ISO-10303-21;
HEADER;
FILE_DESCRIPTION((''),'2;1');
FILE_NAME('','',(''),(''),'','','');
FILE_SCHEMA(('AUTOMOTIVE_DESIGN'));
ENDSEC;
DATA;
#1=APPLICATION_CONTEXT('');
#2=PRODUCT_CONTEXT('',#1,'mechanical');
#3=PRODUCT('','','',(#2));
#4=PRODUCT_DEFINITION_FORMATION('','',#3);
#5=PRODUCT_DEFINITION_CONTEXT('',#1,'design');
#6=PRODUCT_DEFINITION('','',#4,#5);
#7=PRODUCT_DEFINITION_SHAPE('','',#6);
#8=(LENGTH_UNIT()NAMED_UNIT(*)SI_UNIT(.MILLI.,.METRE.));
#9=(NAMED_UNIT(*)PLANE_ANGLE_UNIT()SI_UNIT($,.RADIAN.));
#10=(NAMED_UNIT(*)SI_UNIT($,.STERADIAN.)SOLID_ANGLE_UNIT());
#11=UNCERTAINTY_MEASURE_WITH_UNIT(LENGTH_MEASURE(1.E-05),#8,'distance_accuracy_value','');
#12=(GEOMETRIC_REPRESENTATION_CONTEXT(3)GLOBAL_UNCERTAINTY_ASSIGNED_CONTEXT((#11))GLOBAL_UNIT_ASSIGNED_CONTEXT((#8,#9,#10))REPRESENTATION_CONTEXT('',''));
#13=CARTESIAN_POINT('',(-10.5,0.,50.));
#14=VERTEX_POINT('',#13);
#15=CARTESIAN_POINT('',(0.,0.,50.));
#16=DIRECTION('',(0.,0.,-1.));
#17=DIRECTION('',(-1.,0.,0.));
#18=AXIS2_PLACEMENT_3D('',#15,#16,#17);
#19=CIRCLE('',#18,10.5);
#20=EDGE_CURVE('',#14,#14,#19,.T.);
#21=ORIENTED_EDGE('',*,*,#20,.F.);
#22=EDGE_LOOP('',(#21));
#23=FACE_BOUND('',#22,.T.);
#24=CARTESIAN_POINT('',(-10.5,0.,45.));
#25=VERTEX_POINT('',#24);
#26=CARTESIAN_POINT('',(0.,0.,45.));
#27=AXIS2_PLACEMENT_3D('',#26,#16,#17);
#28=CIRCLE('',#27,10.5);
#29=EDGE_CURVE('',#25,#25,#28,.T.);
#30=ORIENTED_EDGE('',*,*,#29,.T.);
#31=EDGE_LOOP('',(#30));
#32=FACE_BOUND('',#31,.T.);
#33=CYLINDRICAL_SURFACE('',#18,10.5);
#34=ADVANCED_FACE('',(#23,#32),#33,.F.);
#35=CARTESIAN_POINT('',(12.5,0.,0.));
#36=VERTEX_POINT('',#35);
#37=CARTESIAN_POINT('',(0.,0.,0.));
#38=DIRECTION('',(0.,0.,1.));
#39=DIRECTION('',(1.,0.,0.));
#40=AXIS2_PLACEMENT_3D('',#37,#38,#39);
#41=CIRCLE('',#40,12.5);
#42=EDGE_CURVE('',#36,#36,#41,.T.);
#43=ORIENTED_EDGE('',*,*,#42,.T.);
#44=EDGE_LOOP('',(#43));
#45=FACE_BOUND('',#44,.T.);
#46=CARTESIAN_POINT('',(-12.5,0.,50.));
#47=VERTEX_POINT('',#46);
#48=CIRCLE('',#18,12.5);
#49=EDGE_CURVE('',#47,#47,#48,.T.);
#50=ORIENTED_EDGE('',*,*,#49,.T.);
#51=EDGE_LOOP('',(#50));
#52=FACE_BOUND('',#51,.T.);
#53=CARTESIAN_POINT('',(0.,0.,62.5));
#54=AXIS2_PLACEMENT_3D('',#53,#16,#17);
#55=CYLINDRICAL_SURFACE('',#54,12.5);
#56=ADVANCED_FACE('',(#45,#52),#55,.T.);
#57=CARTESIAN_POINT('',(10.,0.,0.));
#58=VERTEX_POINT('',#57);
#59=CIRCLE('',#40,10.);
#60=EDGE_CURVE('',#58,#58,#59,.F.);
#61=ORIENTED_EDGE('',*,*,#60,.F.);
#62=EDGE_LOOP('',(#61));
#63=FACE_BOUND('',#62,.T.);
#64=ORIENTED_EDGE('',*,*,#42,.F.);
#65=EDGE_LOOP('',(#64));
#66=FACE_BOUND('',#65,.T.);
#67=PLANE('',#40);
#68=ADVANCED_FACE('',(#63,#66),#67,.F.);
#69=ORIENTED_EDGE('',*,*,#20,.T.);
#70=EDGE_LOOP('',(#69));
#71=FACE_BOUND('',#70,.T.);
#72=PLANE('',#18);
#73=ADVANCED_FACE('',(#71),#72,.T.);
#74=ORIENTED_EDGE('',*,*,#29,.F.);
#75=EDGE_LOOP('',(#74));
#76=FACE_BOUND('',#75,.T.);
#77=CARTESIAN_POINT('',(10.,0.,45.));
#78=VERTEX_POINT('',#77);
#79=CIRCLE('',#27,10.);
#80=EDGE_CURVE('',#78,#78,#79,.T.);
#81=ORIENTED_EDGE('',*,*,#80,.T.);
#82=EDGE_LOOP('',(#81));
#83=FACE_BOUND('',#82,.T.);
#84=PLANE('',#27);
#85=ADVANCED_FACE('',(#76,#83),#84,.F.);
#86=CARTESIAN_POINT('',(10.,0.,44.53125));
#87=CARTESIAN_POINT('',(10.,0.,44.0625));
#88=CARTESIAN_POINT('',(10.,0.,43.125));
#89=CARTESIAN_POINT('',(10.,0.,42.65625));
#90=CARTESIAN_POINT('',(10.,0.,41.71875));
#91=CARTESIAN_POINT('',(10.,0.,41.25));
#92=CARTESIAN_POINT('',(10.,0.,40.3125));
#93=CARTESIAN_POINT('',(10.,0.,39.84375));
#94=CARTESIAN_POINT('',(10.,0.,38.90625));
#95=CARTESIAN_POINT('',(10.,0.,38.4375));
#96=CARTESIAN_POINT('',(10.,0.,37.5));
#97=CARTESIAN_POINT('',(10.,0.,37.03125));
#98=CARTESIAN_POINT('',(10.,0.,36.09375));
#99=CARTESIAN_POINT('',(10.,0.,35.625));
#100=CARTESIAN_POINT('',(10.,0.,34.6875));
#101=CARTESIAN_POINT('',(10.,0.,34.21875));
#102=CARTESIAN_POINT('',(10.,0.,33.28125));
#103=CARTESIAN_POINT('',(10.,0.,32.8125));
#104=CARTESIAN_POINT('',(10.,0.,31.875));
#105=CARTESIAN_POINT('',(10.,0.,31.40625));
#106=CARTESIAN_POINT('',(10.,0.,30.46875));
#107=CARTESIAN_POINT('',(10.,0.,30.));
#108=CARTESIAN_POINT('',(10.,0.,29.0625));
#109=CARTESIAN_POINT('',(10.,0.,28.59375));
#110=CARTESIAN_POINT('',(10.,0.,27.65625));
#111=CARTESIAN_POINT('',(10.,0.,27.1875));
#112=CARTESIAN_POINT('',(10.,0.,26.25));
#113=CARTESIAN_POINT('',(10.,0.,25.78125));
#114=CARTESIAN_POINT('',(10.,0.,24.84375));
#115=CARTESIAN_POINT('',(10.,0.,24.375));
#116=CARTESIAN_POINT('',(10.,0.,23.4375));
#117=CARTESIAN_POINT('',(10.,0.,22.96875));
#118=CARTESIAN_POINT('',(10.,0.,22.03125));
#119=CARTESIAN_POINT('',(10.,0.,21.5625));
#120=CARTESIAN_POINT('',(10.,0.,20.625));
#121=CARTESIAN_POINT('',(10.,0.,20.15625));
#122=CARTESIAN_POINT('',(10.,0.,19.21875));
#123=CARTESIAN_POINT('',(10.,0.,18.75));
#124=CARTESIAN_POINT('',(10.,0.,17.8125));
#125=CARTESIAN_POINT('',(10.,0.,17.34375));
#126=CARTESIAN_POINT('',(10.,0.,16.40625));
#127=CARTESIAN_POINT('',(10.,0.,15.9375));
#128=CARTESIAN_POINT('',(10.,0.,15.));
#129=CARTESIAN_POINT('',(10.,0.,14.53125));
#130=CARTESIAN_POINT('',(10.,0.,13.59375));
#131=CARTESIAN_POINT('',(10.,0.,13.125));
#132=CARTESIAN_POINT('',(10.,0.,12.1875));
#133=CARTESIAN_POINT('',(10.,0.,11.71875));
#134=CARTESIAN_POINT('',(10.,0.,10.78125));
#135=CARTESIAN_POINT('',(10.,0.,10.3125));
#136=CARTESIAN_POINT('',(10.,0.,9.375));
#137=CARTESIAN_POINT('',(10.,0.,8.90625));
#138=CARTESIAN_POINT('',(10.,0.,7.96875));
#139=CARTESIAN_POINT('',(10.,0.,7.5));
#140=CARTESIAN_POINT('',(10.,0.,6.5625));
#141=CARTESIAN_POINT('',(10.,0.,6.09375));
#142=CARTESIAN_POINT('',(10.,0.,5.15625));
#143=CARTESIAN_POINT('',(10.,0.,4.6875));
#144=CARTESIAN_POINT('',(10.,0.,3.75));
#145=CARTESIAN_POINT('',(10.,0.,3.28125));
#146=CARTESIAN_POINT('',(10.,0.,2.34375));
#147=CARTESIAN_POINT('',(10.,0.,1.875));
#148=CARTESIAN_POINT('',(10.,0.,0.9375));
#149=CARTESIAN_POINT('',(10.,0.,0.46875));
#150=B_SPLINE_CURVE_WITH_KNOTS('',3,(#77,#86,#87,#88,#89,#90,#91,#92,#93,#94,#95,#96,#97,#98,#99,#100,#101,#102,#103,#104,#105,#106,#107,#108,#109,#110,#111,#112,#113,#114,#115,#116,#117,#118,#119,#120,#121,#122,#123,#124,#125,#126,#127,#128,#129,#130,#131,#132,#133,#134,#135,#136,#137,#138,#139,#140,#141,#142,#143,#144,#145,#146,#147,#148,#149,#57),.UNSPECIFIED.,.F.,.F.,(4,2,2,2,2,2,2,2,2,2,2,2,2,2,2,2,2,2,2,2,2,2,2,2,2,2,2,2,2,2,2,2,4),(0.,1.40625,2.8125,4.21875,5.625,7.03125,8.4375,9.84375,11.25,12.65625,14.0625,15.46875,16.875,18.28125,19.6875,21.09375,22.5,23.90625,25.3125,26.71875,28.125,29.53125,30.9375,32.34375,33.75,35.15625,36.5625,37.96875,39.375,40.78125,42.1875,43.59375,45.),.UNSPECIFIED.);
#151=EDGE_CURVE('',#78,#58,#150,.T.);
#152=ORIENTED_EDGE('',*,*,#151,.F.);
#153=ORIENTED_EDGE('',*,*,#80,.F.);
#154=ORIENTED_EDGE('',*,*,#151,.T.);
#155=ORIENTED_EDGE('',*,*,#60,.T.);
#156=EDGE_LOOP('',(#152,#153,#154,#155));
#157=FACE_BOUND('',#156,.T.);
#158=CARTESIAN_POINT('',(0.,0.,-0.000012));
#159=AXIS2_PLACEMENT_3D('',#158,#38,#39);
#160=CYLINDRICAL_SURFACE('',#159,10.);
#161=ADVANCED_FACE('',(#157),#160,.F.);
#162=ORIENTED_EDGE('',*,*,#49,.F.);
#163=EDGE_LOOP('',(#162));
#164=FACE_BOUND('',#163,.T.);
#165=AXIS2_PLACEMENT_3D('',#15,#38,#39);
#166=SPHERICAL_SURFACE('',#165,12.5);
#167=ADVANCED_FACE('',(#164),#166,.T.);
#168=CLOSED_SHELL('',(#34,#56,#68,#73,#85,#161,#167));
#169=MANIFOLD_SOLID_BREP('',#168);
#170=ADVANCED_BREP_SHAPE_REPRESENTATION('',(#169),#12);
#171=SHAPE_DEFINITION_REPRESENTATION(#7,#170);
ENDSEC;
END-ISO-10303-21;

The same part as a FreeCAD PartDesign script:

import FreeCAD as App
import Part
import Sketcher
Q = App.Units.Quantity


def edges_at(feature, points):
    """Names of the edges that pass closest to the given points."""
    edges = feature.Shape.Edges
    near = lambda p: min(range(len(edges)), key=lambda i: edges[i].distToShape(Part.Vertex(*p))[0])
    return sorted({f"Edge{near(p) + 1}" for p in points})

doc = App.newDocument("Part")
body = doc.addObject("PartDesign::Body", "Body")

sketch1 = body.newObject("Sketcher::SketchObject", "Sketch")
sketch1.AttachmentSupport = (doc.getObject("XY_Plane"), [""])
sketch1.MapMode = "FlatFace"
sketch1.addGeometry(Part.Circle(App.Vector(0, 0, 0), App.Vector(0, 0, 1), 12), False)
sketch1.addConstraint(Sketcher.Constraint("Coincident", 0, 3, -1, 1))
sketch1.addConstraint(Sketcher.Constraint("Diameter", 0, Q("25 mm")))
pad1 = body.newObject("PartDesign::Pad", "Pad")
pad1.Profile = sketch1
pad1.Length = 62.5
doc.recompute()

fillet = body.newObject("PartDesign::Fillet", "Fillet")
fillet.Base = (pad1, edges_at(pad1, [(-12.5, 0, 62.5)]))
fillet.Radius = 12.5

sketch2 = body.newObject("Sketcher::SketchObject", "Sketch001")
sketch2.AttachmentSupport = (doc.getObject("XY_Plane"), [""])
sketch2.MapMode = "FlatFace"
sketch2.addGeometry(Part.Circle(App.Vector(0, 0, 0), App.Vector(0, 0, 1), 10), False)
sketch2.addConstraint(Sketcher.Constraint("Coincident", 0, 3, -1, 1))
sketch2.addConstraint(Sketcher.Constraint("Diameter", 0, Q("20 mm")))
pocket1 = body.newObject("PartDesign::Pocket", "Pocket")
pocket1.Profile = sketch2
pocket1.Type = "TwoLengths"
pocket1.Length = 65.951905
pocket1.Length2 = 45

sketch3 = body.newObject("Sketcher::SketchObject", "Sketch002")
sketch3.AttachmentSupport = (doc.getObject("XY_Plane"), [""])
sketch3.MapMode = "FlatFace"
sketch3.AttachmentOffset = App.Placement(App.Vector(0, 0, 45), App.Rotation())
sketch3.addGeometry(Part.Circle(App.Vector(0, 0, 0), App.Vector(0, 0, 1), 10), False)
sketch3.addConstraint(Sketcher.Constraint("Coincident", 0, 3, -1, 1))
sketch3.addConstraint(Sketcher.Constraint("Diameter", 0, Q("21 mm")))
pocket2 = body.newObject("PartDesign::Pocket", "Pocket001")
pocket2.Profile = sketch3
pocket2.Length = 5
pocket2.Reversed = True

doc.recompute()
